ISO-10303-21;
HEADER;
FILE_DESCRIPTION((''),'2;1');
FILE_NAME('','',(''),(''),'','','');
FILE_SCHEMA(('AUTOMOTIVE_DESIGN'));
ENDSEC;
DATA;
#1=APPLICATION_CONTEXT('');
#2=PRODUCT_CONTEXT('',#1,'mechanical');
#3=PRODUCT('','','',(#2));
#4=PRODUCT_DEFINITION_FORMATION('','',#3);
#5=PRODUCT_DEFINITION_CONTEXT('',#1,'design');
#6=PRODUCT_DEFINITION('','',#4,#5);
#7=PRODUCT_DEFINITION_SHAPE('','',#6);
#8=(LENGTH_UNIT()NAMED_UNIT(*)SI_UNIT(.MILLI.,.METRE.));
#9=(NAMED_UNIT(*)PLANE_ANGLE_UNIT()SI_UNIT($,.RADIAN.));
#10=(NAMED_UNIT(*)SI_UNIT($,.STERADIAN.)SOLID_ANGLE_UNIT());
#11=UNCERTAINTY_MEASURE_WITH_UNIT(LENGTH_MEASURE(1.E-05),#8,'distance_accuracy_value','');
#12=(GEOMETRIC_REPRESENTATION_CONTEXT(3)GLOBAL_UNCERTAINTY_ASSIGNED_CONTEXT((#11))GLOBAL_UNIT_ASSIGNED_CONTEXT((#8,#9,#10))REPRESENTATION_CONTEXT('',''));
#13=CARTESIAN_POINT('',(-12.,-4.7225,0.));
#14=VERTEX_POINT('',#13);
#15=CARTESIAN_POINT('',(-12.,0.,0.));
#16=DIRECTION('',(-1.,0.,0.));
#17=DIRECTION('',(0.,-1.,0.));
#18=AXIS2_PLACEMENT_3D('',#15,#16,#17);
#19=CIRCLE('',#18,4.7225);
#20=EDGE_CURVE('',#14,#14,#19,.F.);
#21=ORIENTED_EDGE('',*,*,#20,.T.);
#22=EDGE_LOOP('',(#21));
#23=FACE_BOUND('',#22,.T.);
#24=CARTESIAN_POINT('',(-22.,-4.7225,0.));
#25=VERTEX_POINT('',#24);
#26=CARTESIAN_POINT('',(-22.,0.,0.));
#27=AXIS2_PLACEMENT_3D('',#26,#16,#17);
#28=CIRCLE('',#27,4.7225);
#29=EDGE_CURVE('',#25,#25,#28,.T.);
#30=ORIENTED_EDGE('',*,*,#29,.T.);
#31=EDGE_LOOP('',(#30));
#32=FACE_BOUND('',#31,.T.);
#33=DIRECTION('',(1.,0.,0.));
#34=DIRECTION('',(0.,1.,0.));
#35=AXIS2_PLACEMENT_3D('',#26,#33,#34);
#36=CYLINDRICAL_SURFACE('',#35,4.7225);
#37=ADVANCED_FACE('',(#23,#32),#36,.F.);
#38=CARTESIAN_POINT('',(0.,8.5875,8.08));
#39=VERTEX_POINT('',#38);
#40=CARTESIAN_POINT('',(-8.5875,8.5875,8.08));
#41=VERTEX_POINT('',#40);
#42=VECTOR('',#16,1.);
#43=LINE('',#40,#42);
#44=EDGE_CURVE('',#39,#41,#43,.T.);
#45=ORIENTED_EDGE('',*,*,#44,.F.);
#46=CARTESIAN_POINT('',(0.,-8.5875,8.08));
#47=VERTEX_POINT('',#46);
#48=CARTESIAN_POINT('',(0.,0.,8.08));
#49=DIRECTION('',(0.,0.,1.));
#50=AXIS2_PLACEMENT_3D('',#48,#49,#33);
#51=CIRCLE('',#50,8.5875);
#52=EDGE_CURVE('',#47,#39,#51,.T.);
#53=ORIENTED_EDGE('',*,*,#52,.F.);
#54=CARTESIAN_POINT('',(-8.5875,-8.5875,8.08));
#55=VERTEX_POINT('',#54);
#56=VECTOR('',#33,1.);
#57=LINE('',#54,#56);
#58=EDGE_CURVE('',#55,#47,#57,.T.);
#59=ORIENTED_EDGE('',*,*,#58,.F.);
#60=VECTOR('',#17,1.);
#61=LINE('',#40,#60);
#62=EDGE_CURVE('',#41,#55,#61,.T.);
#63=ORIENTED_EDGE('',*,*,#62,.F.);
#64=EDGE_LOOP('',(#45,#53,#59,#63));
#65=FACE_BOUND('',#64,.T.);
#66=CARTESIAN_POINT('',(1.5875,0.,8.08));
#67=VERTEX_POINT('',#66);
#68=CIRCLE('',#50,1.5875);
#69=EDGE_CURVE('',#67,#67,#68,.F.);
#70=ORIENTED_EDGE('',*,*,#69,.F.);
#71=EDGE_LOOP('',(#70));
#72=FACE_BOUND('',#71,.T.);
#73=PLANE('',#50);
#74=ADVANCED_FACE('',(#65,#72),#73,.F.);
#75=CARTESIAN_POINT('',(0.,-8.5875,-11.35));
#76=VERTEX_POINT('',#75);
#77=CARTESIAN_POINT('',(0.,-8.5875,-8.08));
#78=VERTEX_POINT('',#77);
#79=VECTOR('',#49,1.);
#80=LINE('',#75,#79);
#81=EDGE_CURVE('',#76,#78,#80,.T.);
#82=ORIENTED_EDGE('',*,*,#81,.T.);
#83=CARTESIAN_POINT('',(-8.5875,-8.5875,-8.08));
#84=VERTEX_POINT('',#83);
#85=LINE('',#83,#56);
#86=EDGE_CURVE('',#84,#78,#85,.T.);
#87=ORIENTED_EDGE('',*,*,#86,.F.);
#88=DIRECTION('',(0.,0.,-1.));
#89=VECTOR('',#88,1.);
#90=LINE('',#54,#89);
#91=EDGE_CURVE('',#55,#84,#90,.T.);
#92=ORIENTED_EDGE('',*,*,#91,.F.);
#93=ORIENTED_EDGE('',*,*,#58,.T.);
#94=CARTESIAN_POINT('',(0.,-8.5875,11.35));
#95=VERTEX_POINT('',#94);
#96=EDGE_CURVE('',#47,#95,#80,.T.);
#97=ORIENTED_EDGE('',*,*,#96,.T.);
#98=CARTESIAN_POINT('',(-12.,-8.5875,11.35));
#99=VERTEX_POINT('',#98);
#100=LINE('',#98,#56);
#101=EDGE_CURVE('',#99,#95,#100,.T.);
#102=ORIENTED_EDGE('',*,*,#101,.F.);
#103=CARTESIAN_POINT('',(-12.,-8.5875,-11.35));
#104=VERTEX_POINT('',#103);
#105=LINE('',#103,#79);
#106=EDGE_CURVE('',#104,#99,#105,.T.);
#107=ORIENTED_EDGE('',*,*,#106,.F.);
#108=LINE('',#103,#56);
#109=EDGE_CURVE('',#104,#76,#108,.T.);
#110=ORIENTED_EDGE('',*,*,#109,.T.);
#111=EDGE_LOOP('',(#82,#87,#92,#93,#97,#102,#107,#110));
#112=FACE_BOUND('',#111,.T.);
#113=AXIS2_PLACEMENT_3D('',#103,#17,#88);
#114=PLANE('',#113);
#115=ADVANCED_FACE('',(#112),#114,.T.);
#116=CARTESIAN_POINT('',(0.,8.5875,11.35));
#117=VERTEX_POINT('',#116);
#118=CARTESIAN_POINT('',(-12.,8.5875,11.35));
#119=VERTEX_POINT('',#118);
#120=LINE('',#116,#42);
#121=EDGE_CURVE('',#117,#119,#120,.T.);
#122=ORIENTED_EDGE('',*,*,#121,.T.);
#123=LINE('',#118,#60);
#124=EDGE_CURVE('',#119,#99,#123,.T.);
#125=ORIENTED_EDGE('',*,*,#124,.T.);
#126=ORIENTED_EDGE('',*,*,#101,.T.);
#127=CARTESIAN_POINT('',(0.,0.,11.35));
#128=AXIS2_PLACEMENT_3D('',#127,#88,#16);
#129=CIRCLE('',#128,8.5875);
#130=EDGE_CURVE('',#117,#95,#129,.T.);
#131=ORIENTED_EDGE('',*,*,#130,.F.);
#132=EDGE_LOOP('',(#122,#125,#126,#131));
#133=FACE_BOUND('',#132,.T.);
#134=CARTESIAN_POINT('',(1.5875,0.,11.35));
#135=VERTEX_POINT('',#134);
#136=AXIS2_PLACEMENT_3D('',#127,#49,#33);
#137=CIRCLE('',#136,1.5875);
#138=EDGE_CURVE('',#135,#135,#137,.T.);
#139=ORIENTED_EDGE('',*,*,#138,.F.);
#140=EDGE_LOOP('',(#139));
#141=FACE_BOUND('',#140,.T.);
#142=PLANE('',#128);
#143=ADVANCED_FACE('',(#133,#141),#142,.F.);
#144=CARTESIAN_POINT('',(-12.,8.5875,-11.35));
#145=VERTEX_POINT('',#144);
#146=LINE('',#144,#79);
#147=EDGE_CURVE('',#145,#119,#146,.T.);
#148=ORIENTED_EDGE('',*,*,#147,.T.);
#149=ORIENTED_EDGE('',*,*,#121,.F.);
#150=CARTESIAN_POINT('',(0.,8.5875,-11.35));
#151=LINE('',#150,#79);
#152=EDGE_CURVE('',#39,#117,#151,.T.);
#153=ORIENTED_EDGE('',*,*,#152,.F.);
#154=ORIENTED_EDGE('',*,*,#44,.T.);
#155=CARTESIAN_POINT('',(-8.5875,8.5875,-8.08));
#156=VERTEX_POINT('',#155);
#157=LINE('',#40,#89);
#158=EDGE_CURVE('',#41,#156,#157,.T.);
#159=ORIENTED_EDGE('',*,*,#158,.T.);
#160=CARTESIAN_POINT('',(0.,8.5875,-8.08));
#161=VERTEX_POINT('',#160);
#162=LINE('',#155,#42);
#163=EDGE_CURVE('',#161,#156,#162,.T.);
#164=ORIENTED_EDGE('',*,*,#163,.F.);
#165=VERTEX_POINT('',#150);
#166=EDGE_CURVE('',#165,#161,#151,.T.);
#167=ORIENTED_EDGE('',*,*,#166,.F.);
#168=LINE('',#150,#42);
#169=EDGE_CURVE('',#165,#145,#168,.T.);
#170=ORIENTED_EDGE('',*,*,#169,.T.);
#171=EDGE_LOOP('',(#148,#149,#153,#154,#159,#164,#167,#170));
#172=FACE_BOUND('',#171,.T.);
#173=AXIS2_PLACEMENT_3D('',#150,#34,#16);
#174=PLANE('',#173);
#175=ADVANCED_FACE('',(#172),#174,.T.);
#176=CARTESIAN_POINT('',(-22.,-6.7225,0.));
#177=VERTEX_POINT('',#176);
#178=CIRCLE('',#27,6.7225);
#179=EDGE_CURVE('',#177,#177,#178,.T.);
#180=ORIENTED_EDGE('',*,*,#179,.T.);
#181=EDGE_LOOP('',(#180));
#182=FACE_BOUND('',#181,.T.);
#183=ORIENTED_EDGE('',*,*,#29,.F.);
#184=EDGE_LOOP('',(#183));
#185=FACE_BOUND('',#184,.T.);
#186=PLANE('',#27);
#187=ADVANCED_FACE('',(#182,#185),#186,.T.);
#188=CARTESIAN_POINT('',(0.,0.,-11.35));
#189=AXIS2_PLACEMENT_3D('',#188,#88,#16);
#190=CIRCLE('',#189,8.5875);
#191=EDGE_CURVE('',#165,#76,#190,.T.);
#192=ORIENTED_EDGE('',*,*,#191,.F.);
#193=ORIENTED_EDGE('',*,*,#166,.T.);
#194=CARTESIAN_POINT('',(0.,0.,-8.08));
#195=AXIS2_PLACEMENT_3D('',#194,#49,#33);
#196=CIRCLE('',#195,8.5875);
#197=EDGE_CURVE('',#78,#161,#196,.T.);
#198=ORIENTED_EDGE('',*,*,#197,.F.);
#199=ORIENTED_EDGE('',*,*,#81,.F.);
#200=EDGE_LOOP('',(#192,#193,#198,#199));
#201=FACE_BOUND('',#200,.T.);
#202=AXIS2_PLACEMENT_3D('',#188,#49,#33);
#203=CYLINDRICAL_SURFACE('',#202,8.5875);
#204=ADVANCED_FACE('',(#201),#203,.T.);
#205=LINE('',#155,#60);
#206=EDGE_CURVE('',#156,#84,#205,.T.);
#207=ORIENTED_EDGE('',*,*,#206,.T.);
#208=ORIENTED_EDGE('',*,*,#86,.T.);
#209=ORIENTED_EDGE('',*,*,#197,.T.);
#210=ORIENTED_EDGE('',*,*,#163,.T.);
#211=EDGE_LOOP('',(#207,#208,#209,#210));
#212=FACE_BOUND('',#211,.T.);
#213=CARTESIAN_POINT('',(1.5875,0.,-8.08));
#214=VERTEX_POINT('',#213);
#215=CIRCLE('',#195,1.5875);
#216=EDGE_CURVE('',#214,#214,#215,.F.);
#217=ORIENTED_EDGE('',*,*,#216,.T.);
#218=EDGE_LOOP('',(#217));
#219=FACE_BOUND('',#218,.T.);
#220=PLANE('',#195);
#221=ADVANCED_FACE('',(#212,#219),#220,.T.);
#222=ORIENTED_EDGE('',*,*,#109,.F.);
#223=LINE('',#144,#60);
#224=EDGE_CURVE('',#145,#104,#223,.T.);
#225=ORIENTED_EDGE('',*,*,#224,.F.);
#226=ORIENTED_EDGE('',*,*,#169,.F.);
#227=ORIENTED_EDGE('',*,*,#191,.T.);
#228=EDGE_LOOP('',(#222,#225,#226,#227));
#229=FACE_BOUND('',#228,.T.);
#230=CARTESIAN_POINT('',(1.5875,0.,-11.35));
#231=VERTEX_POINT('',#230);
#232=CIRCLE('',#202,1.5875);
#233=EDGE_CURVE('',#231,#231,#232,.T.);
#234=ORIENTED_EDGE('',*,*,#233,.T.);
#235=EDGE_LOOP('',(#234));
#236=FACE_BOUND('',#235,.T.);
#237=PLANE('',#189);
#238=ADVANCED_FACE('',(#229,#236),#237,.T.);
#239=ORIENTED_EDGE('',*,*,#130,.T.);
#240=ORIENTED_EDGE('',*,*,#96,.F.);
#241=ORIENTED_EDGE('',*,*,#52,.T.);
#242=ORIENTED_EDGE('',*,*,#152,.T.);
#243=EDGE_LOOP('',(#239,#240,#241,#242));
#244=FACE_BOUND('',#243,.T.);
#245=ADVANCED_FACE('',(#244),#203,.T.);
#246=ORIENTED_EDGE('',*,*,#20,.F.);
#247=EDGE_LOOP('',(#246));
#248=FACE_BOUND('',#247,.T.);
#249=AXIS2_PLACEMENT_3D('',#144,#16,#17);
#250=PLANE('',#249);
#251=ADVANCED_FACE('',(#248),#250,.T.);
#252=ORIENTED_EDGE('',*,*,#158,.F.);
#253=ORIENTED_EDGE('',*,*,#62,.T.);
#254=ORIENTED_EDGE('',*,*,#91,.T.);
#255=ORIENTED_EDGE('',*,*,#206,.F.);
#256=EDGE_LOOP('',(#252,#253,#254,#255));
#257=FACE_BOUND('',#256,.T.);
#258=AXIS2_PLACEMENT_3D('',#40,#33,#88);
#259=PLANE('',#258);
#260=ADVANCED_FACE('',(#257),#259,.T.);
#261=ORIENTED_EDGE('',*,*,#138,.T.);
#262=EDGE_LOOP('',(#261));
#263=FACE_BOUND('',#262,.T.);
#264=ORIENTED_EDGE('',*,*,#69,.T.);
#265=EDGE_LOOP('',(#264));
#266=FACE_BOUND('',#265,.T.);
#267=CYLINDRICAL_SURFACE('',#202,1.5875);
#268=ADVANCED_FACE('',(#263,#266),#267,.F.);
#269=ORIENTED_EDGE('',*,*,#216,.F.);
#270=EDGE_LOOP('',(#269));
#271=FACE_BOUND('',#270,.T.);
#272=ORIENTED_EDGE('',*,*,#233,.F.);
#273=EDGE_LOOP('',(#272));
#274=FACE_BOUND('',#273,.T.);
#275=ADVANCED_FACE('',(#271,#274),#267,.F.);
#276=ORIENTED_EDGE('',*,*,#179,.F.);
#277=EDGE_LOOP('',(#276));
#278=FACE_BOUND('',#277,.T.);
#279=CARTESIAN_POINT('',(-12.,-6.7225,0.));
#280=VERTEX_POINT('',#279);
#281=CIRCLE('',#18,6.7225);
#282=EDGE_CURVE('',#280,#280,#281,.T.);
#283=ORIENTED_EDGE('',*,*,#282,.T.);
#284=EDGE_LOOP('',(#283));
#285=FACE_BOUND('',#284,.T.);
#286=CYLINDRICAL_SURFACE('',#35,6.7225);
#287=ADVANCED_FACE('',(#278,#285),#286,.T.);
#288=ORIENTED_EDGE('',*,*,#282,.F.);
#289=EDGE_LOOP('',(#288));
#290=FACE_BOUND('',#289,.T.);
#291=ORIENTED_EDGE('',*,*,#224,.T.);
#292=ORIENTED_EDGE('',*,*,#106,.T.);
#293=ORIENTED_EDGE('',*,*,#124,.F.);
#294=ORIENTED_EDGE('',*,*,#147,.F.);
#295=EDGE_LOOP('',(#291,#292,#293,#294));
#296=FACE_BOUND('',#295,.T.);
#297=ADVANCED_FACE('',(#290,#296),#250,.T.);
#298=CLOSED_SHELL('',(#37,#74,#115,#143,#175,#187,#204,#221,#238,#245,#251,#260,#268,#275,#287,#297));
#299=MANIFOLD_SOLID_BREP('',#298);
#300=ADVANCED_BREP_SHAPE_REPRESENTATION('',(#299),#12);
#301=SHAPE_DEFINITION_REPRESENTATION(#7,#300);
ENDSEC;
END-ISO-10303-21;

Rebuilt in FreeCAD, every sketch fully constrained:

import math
import FreeCAD as App
import Part
import Sketcher
from FreeCAD import Vector
Q = App.Units.Quantity


def add_polygon(sketch, points):
    """Adds a closed chain of lines whose ends are joined by coincident constraints."""
    first, n = sketch.GeometryCount, len(points)
    for a, b in zip(points, points[1:] + points[:1]):
        sketch.addGeometry(Part.LineSegment(App.Vector(*a, 0), App.Vector(*b, 0)), False)
    for i in range(n):
        sketch.addConstraint(Sketcher.Constraint("Coincident", first + i, 2, first + (i + 1) % n, 1))

doc = App.newDocument("Part")
body = doc.addObject("PartDesign::Body", "Body")

# Sketch on XY plane
sketch1 = body.newObject("Sketcher::SketchObject", "Sketch")
sketch1.AttachmentSupport = (doc.getObject("XY_Plane"), [""])
sketch1.MapMode = "FlatFace"
sketch1.addGeometry(Part.LineSegment(Vector(0, 8.5875, 0), Vector(-12, 8.5875, 0)), False)
sketch1.addGeometry(Part.LineSegment(Vector(-12, 8.5875, 0), Vector(-12, -8.5875, 0)), False)
sketch1.addGeometry(Part.LineSegment(Vector(-12, -8.5875, 0), Vector(0, -8.5875, 0)), False)
sketch1.addGeometry(Part.ArcOfCircle(Part.Circle(Vector(0, 0, 0), Vector(0, 0, 1), 8.5875), math.radians(-90), math.radians(90)), False)
sketch1.addGeometry(Part.Circle(Vector(0, 0, 0), Vector(0, 0, 1), 1.5875), False)
sketch1.addConstraint(Sketcher.Constraint("Coincident", 0, 2, 1, 1))
sketch1.addConstraint(Sketcher.Constraint("Coincident", 1, 2, 2, 1))
sketch1.addConstraint(Sketcher.Constraint("Tangent", 2, 2, 3, 1))
sketch1.addConstraint(Sketcher.Constraint("Tangent", 3, 2, 0, 1))
sketch1.addConstraint(Sketcher.Constraint("Horizontal", 0))
sketch1.addConstraint(Sketcher.Constraint("Vertical", 1))
sketch1.addConstraint(Sketcher.Constraint("Horizontal", 2))
sketch1.addConstraint(Sketcher.Constraint("Coincident", 3, 3, -1, 1))
sketch1.addConstraint(Sketcher.Constraint("Coincident", 4, 3, -1, 1))
sketch1.addConstraint(Sketcher.Constraint("DistanceX", 0, 2, 0, 1, Q("12 mm")))
sketch1.addConstraint(Sketcher.Constraint("Diameter", 4, Q("3.175 mm")))
sketch1.addConstraint(Sketcher.Constraint("Radius", 3, Q("8.5875 mm")))
pad1 = body.newObject("PartDesign::Pad", "Pad")
pad1.Profile = sketch1
pad1.Type = "TwoLengths"
pad1.Length = 11.35
pad1.Length2 = 11.35

# Sketch on XY plane
sketch2 = body.newObject("Sketcher::SketchObject", "Sketch001")
sketch2.AttachmentSupport = (doc.getObject("XY_Plane"), [""])
sketch2.MapMode = "FlatFace"
add_polygon(sketch2, [(-8.5875, 8.5875), (-8.5875, -8.5875), (8.5875, -8.5875), (8.5875, 8.5875)])  # lines 0-3
sketch2.addConstraint(Sketcher.Constraint("Vertical", 0))
sketch2.addConstraint(Sketcher.Constraint("Horizontal", 1))
sketch2.addConstraint(Sketcher.Constraint("Vertical", 2))
sketch2.addConstraint(Sketcher.Constraint("Horizontal", 3))
sketch2.addConstraint(Sketcher.Constraint("Symmetric", 0, 2, 2, 2, -1, 1))
sketch2.addConstraint(Sketcher.Constraint("Equal", 3, 0))
sketch2.addConstraint(Sketcher.Constraint("DistanceX", 1, 1, 1, 2, Q("17.175 mm")))
pocket1 = body.newObject("PartDesign::Pocket", "Pocket")
pocket1.Profile = sketch2
pocket1.Type = "TwoLengths"
pocket1.Length = 8.08
pocket1.Length2 = 8.08
pocket1.Reversed = True

# Sketch on YZ plane
sketch3 = body.newObject("Sketcher::SketchObject", "Sketch002")
sketch3.AttachmentSupport = (doc.getObject("YZ_Plane"), [""])
sketch3.MapMode = "FlatFace"
sketch3.AttachmentOffset = App.Placement(Vector(0, 0, -12), App.Rotation())
sketch3.addGeometry(Part.Circle(Vector(0, 0, 0), Vector(0, 0, 1), 6.7225), False)
sketch3.addGeometry(Part.Circle(Vector(0, 0, 0), Vector(0, 0, 1), 4.7225), False)
sketch3.addConstraint(Sketcher.Constraint("Coincident", 0, 3, -1, 1))
sketch3.addConstraint(Sketcher.Constraint("Coincident", 1, 3, -1, 1))
sketch3.addConstraint(Sketcher.Constraint("Diameter", 0, Q("13.445 mm")))
sketch3.addConstraint(Sketcher.Constraint("Diameter", 1, Q("9.445 mm")))
pad2 = body.newObject("PartDesign::Pad", "Pad001")
pad2.Profile = sketch3
pad2.Length = 10
pad2.Reversed = True

doc.recompute()
